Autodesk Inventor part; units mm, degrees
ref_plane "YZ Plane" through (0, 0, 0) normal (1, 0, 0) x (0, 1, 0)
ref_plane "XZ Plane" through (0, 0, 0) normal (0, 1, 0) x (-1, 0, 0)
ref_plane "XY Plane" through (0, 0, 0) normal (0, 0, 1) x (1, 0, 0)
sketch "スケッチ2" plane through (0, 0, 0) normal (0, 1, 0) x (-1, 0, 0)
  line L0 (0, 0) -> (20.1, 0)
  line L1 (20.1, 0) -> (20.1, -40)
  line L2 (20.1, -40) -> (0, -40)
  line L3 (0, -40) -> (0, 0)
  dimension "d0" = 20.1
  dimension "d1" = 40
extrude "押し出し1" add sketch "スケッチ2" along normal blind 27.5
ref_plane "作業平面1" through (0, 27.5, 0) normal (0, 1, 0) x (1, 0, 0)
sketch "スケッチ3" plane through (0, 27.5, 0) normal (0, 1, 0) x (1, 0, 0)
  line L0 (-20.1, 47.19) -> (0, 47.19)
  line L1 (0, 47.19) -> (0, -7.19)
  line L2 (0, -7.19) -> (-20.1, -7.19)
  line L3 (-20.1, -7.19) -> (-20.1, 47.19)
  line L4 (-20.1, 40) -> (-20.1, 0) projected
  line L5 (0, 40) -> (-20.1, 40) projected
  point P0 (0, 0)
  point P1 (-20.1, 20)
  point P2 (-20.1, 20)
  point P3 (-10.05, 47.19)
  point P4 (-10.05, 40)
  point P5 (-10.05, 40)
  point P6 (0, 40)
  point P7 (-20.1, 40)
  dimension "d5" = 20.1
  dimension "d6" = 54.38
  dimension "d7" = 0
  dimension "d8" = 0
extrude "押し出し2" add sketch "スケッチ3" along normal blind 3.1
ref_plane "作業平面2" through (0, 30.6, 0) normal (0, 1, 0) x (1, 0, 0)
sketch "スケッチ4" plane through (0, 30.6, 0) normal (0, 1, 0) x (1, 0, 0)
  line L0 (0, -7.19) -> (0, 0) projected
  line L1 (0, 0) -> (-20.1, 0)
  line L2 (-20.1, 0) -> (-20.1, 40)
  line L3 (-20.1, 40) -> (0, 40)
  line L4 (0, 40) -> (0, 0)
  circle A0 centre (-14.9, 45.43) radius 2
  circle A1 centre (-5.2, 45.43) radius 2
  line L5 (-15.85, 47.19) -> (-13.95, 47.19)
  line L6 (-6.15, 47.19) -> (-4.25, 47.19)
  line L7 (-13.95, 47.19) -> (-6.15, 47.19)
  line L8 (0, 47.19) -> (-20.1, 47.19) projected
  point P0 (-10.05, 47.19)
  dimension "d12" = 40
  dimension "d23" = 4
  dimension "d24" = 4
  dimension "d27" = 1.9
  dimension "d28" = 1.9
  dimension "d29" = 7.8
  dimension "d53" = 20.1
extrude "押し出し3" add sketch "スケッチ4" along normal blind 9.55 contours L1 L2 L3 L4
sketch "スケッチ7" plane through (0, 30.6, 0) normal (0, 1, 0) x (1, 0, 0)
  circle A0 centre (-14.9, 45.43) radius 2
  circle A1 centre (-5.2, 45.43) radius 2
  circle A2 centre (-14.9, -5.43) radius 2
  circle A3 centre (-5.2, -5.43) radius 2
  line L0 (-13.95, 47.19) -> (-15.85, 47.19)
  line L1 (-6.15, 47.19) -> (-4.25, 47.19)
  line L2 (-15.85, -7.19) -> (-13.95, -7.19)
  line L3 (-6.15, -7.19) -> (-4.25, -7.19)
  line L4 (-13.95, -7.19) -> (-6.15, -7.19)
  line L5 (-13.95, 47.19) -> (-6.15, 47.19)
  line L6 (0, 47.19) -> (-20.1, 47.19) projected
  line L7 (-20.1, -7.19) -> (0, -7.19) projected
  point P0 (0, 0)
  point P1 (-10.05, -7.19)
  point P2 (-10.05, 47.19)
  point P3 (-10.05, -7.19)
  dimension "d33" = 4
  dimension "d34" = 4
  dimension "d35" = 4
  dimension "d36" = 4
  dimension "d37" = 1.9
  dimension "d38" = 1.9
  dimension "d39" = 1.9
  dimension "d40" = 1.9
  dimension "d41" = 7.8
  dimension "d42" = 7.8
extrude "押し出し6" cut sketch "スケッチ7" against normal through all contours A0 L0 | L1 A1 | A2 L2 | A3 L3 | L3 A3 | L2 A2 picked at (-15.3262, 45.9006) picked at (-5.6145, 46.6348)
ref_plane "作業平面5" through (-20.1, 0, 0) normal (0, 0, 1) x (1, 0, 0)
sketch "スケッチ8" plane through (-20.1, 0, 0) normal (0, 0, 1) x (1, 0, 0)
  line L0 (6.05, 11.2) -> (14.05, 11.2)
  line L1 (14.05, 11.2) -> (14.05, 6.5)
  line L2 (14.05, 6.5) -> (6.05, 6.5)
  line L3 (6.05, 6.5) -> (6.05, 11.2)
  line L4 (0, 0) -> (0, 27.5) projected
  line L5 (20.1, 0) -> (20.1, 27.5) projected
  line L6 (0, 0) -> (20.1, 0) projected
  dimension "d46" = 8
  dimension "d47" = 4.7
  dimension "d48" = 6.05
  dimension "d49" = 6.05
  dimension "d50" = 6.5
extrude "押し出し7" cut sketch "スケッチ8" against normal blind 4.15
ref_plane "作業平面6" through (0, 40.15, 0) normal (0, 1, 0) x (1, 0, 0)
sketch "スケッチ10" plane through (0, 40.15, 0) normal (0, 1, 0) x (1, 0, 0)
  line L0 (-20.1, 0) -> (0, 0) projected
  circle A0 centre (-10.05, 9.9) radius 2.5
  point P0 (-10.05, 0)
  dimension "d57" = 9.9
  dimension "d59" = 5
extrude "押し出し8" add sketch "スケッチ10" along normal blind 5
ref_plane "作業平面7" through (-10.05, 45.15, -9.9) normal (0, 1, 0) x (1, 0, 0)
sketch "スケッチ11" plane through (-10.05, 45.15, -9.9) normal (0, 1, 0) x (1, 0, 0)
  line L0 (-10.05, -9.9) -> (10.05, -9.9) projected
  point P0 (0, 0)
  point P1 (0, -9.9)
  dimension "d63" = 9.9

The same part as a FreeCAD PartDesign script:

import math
import FreeCAD as App
import Part
import Sketcher
Q = App.Units.Quantity


def add_polygon(sketch, points):
    """Adds a closed chain of lines whose ends are joined by coincident constraints."""
    first, n = sketch.GeometryCount, len(points)
    for a, b in zip(points, points[1:] + points[:1]):
        sketch.addGeometry(Part.LineSegment(App.Vector(*a, 0), App.Vector(*b, 0)), False)
    for i in range(n):
        sketch.addConstraint(Sketcher.Constraint("Coincident", first + i, 2, first + (i + 1) % n, 1))

doc = App.newDocument("Part")
body = doc.addObject("PartDesign::Body", "Body")

# Sketch on XZ plane
sketch1 = body.newObject("Sketcher::SketchObject", "Sketch")
sketch1.AttachmentSupport = (doc.getObject("XZ_Plane"), [""])
sketch1.MapMode = "FlatFace"
add_polygon(sketch1, [(-20, 0), (0, 0), (0, -40), (-20, -40)])  # lines 0-3
sketch1.addConstraint([
    Sketcher.Constraint("Horizontal", 0),
    Sketcher.Constraint("Vertical", 1),
    Sketcher.Constraint("Horizontal", 2),
    Sketcher.Constraint("Vertical", 3),
    Sketcher.Constraint("Coincident", 0, 2, -1, 1),
    Sketcher.Constraint("DistanceY", 1, 2, 1, 1, Q("40 mm")),
    Sketcher.Constraint("DistanceX", 0, 1, 0, 2, Q("20.1 mm")),
])
pad1 = body.newObject("PartDesign::Pad", "Pad")
pad1.Profile = sketch1
pad1.Length = 27.5
pad1.Reversed = True

# Sketch on XZ plane
sketch2 = body.newObject("Sketcher::SketchObject", "Sketch001")
sketch2.AttachmentSupport = (doc.getObject("XZ_Plane"), [""])
sketch2.MapMode = "FlatFace"
sketch2.AttachmentOffset = App.Placement(App.Vector(0, 0, -27.5), App.Rotation())
add_polygon(sketch2, [(0, -47), (-20, -47), (-20, 7), (0, 7)])  # lines 0-3
sketch2.addConstraint([
    Sketcher.Constraint("Horizontal", 0),
    Sketcher.Constraint("Vertical", 1),
    Sketcher.Constraint("Horizontal", 2),
    Sketcher.Constraint("Vertical", 3),
    Sketcher.Constraint("PointOnObject", 2, 2, -2),
    Sketcher.Constraint("DistanceX", 0, 2, 0, 1, Q("20.1 mm")),
    Sketcher.Constraint("DistanceY", 1, 1, 1, 2, Q("54.38 mm")),
    Sketcher.Constraint("DistanceY", 0, 2, -1, 1, Q("47.19 mm")),
])
pad2 = body.newObject("PartDesign::Pad", "Pad001")
pad2.Profile = sketch2
pad2.Length = 3.1
pad2.Reversed = True

# Sketch on XZ plane
sketch3 = body.newObject("Sketcher::SketchObject", "Sketch002")
sketch3.AttachmentSupport = (doc.getObject("XZ_Plane"), [""])
sketch3.MapMode = "FlatFace"
sketch3.AttachmentOffset = App.Placement(App.Vector(0, 0, -30.6), App.Rotation())
add_polygon(sketch3, [(-20, 0), (0, 0), (0, -40), (-20, -40)])  # lines 0-3
sketch3.addConstraint([
    Sketcher.Constraint("Horizontal", 0),
    Sketcher.Constraint("Vertical", 1),
    Sketcher.Constraint("Horizontal", 2),
    Sketcher.Constraint("Vertical", 3),
    Sketcher.Constraint("Coincident", 0, 2, -1, 1),
    Sketcher.Constraint("DistanceY", 1, 2, 1, 1, Q("40 mm")),
    Sketcher.Constraint("DistanceX", 0, 1, 0, 2, Q("20.1 mm")),
])
pad3 = body.newObject("PartDesign::Pad", "Pad002")
pad3.Profile = sketch3
pad3.Length = 9.55
pad3.Reversed = True

# Sketch on XZ plane
sketch4 = body.newObject("Sketcher::SketchObject", "Sketch003")
sketch4.AttachmentSupport = (doc.getObject("XZ_Plane"), [""])
sketch4.MapMode = "FlatFace"
sketch4.AttachmentOffset = App.Placement(App.Vector(0, 0, -30.6), App.Rotation())
sketch4.addGeometry([
    Part.ArcOfCircle(Part.Circle(App.Vector(-14.9, -45.4, 0), App.Vector(0, 0, 1), 2), math.radians(-62), math.radians(242)),  # 0
    Part.LineSegment(App.Vector(-15.8, -47.2, 0), App.Vector(-13.9, -47.2, 0)),  # 1
    Part.LineSegment(App.Vector(-4.2, -47.2, 0), App.Vector(-6.2, -47.2, 0)),  # 2
    Part.ArcOfCircle(Part.Circle(App.Vector(-5.2, -45.4, 0), App.Vector(0, 0, 1), 2), math.radians(-62), math.radians(242)),  # 3
    Part.Circle(App.Vector(-14.9, 5.4, 0), App.Vector(0, 0, 1), 2),  # 4
    Part.Circle(App.Vector(-5.2, 5.4, 0), App.Vector(0, 0, 1), 2),  # 5
], False)
sketch4.addConstraint([
    Sketcher.Constraint("Coincident", 0, 1, 1, 2),
    Sketcher.Constraint("Coincident", 1, 1, 0, 2),
    Sketcher.Constraint("Coincident", 2, 1, 3, 1),
    Sketcher.Constraint("Coincident", 3, 2, 2, 2),
    Sketcher.Constraint("Horizontal", 1),
    Sketcher.Constraint("Horizontal", 2),
    Sketcher.Constraint("Equal", 0, 3),
    Sketcher.Constraint("Equal", 3, 4),
    Sketcher.Constraint("Equal", 4, 5),
    Sketcher.Constraint("Horizontal", 0, 3, 3, 3),
    Sketcher.Constraint("Horizontal", 4, 3, 5, 3),
    Sketcher.Constraint("Horizontal", 1, 1, 2, 1),
    Sketcher.Constraint("Vertical", 0, 3, 4, 3),
    Sketcher.Constraint("Vertical", 3, 3, 5, 3),
    Sketcher.Constraint("Diameter", 4, Q("4 mm")),
    Sketcher.Constraint("DistanceX", 1, 1, 1, 2, Q("1.9 mm")),
    Sketcher.Constraint("DistanceX", 0, 1, 3, 2, Q("7.8 mm")),
    Sketcher.Constraint("DistanceX", 0, 3, -1, 1, Q("14.9 mm")),
    Sketcher.Constraint("DistanceY", 0, 3, -1, 1, Q("45.43 mm")),
    Sketcher.Constraint("DistanceY", -1, 1, 4, 3, Q("5.43 mm")),
])
pocket1 = body.newObject("PartDesign::Pocket", "Pocket")
pocket1.Profile = sketch4
pocket1.Type = "ThroughAll"
pocket1.Reversed = True

# Sketch on XY plane
sketch5 = body.newObject("Sketcher::SketchObject", "Sketch004")
sketch5.AttachmentSupport = (doc.getObject("XY_Plane"), [""])
sketch5.MapMode = "FlatFace"
add_polygon(sketch5, [(-6, 11.2), (-14.1, 11.2), (-14.1, 6.5), (-6, 6.5)])  # lines 0-3
sketch5.addConstraint([
    Sketcher.Constraint("Horizontal", 0),
    Sketcher.Constraint("Vertical", 1),
    Sketcher.Constraint("Horizontal", 2),
    Sketcher.Constraint("Vertical", 3),
    Sketcher.Constraint("DistanceX", 0, 2, 0, 1, Q("8 mm")),
    Sketcher.Constraint("DistanceY", 1, 2, 1, 1, Q("4.7 mm")),
    Sketcher.Constraint("DistanceY", -1, 1, 1, 2, Q("6.5 mm")),
    Sketcher.Constraint("DistanceX", 2, 2, -1, 1, Q("6.05 mm")),
])
pocket2 = body.newObject("PartDesign::Pocket", "Pocket001")
pocket2.Profile = sketch5
pocket2.Length = 4.15

# Sketch on XZ plane
sketch6 = body.newObject("Sketcher::SketchObject", "Sketch005")
sketch6.AttachmentSupport = (doc.getObject("XZ_Plane"), [""])
sketch6.MapMode = "FlatFace"
sketch6.AttachmentOffset = App.Placement(App.Vector(0, 0, -40.15), App.Rotation())
sketch6.addGeometry(Part.Circle(App.Vector(-10.1, -9.9, 0), App.Vector(0, 0, 1), 2.5), False)
sketch6.addConstraint([
    Sketcher.Constraint("Diameter", 0, Q("5 mm")),
    Sketcher.Constraint("DistanceY", 0, 3, -1, 1, Q("9.9 mm")),
    Sketcher.Constraint("DistanceX", 0, 3, -1, 1, Q("10.05 mm")),
])
pad4 = body.newObject("PartDesign::Pad", "Pad003")
pad4.Profile = sketch6
pad4.Length = 5
pad4.Reversed = True

doc.recompute()
